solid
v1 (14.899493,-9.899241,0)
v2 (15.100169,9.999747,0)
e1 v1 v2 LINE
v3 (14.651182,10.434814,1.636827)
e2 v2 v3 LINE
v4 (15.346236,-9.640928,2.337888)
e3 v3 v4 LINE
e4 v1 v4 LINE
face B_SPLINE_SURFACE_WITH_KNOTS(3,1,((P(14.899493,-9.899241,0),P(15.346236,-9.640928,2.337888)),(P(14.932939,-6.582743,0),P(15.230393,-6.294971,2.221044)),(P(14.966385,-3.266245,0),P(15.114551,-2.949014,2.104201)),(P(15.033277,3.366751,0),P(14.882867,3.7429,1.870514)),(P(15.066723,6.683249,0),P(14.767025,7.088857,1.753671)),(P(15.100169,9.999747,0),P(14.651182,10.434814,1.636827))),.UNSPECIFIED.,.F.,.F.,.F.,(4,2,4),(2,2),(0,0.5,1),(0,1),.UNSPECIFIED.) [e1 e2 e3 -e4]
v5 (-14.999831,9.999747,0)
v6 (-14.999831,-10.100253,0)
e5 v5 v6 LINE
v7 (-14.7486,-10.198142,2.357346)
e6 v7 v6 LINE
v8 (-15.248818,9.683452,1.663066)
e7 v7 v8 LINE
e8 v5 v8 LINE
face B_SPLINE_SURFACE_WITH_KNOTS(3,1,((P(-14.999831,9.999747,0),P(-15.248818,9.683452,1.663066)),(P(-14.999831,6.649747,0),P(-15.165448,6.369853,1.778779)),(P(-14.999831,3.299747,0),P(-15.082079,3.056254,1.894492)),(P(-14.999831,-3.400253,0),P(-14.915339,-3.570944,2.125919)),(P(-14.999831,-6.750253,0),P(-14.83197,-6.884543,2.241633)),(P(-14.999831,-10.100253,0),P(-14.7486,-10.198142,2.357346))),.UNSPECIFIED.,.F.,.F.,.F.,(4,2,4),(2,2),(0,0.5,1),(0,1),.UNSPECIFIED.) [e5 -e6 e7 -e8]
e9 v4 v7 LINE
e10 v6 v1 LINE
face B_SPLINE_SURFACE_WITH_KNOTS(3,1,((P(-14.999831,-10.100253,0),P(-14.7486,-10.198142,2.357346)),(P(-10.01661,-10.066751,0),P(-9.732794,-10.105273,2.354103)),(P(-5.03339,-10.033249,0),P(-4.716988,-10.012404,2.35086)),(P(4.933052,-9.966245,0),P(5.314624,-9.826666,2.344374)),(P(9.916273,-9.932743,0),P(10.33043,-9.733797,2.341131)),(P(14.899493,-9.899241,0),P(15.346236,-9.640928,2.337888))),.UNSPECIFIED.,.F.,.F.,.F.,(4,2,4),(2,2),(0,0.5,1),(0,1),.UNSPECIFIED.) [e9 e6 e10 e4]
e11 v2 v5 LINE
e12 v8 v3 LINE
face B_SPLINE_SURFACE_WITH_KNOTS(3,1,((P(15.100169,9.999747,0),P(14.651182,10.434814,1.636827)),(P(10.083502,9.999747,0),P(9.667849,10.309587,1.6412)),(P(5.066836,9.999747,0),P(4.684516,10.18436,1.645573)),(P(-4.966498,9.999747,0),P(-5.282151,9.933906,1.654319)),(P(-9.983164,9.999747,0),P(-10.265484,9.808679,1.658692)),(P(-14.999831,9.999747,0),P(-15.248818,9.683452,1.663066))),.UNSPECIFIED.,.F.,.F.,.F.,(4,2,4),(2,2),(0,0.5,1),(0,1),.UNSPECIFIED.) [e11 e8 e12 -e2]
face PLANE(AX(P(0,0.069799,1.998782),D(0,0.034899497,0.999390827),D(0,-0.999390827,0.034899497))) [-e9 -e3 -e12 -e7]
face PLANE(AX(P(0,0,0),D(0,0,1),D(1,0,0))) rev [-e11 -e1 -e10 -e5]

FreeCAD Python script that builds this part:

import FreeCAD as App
import Part
import Sketcher

V = App.Vector
Q = App.Units.Quantity

doc = App.newDocument("Part")
body = doc.addObject("PartDesign::Body", "Body")

# Sketch on XY plane
sketch1 = body.newObject("Sketcher::SketchObject", "Sketch")
sketch1.AttachmentSupport = (doc.getObject("XY_Plane"), [""])
sketch1.MapMode = "FlatFace"
sketch1.addGeometry([
    Part.LineSegment(V(-15, 10, 0), V(-15, -10, 0)),
    Part.LineSegment(V(-15, -10, 0), V(15, -10, 0)),
    Part.LineSegment(V(15, -10, 0), V(15, 10, 0)),
    Part.LineSegment(V(15, 10, 0), V(-15, 10, 0)),
], False)
sketch1.addConstraint([
    Sketcher.Constraint("Coincident", 0, 2, 1, 1),
    Sketcher.Constraint("Coincident", 1, 2, 2, 1),
    Sketcher.Constraint("Coincident", 2, 2, 3, 1),
    Sketcher.Constraint("Coincident", 3, 2, 0, 1),
    Sketcher.Constraint("Vertical", 0),
    Sketcher.Constraint("Horizontal", 3),
    Sketcher.Constraint("DistanceX", 3, 2, 3, 1, Q("30.1 mm")),
    Sketcher.Constraint("DistanceY", 0, 2, 0, 1, Q("20.1 mm")),
    Sketcher.Constraint("Distance", 1, Q("29.9 mm")),
    Sketcher.Constraint("Distance", 2, Q("19.9 mm")),
    Sketcher.Constraint("DistanceX", 0, 2, -1, 1, Q("14.999831 mm")),
    Sketcher.Constraint("DistanceY", 1, 2, -1, 1, Q("9.899241 mm")),
])

# Sketch on an angled plane
sketch2 = body.newObject("Sketcher::SketchObject", "Sketch001")
sketch2.Placement = App.Placement(V(0, 0.069799, 1.998782), App.Rotation(V(-1, 0, 0), V(0, 0.999390827, -0.034899497), V(0, -0.034899497, -0.999390827), "ZXY"))
sketch2.addGeometry([
    Part.LineSegment(V(14.7486, -10.2742, 0), V(15.248818, 9.619512, 0)),
    Part.LineSegment(V(15.248818, 9.619512, 0), V(-14.651182, 10.371333, 0)),
    Part.LineSegment(V(-14.651182, 10.371333, 0), V(-15.346236, -9.716646, 0)),
    Part.LineSegment(V(-15.346236, -9.716646, 0), V(14.7486, -10.2742, 0)),
], False)
sketch2.addConstraint([
    Sketcher.Constraint("Coincident", 0, 2, 1, 1),
    Sketcher.Constraint("Coincident", 1, 2, 2, 1),
    Sketcher.Constraint("Coincident", 2, 2, 3, 1),
    Sketcher.Constraint("Coincident", 3, 2, 0, 1),
    Sketcher.Constraint("Perpendicular", 0, 1),
    Sketcher.Constraint("Distance", 0, Q("19.9 mm")),
    Sketcher.Constraint("Distance", 2, Q("20.1 mm")),
    Sketcher.Constraint("Distance", 3, Q("30.1 mm")),
    Sketcher.Constraint("DistanceX", 1, 2, 0, 2, Q("29.9 mm")),
    Sketcher.Constraint("DistanceX", -1, 1, 3, 2, Q("14.7486 mm")),
    Sketcher.Constraint("DistanceY", 3, 2, -1, 1, Q("10.2742 mm")),
    Sketcher.Constraint("Distance", 1, Q("29.909451 mm")),
])

additiveloft = body.newObject("PartDesign::AdditiveLoft", "AdditiveLoft")
additiveloft.Profile = sketch1
additiveloft.Sections = [sketch2]

doc.recompute()
